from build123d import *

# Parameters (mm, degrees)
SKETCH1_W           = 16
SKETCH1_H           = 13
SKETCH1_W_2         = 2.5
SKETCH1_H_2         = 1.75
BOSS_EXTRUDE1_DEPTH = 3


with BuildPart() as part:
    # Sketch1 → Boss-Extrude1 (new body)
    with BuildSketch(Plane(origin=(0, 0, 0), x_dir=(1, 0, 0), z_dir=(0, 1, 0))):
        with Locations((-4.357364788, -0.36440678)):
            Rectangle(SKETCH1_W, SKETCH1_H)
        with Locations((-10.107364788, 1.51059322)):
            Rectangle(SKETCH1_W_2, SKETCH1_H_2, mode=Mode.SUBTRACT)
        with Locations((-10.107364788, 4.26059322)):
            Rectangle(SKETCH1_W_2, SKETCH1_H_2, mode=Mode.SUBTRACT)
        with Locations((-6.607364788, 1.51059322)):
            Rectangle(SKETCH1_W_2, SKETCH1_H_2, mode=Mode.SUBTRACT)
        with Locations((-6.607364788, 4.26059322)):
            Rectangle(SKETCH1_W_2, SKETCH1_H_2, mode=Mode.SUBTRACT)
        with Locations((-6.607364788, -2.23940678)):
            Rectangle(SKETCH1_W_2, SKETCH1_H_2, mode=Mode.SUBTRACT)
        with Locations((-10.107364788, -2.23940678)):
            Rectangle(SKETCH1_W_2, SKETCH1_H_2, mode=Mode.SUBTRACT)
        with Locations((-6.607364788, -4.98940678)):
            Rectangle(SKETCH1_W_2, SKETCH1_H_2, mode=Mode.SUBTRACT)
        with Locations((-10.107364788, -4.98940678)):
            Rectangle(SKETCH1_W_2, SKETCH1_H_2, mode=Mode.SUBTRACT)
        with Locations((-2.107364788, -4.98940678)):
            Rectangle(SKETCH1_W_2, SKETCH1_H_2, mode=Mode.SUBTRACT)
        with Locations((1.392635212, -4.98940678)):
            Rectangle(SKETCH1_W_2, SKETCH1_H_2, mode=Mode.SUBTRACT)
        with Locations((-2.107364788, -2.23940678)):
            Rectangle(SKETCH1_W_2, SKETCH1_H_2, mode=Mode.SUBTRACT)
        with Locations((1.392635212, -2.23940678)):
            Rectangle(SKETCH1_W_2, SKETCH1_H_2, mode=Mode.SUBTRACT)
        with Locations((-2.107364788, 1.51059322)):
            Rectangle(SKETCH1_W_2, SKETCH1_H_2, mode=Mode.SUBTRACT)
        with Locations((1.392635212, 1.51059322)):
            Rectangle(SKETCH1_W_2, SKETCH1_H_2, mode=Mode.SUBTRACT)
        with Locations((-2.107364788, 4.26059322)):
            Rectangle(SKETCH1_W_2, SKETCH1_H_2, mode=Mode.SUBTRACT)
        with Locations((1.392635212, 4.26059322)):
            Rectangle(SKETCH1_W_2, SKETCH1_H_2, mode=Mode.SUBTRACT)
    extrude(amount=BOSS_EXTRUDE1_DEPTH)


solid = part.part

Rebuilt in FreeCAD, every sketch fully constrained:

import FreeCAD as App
import Part
import Sketcher

V = App.Vector
Q = App.Units.Quantity

doc = App.newDocument("Part")
body = doc.addObject("PartDesign::Body", "Body")

# Sketch on XZ plane
sketch1 = body.newObject("Sketcher::SketchObject", "Sketch")
sketch1.AttachmentSupport = (doc.getObject("XZ_Plane"), [""])
sketch1.MapMode = "FlatFace"
sketch1.addGeometry([
    Part.LineSegment(V(-12.357365, -6.135593, 0), V(-12.357365, 6.864407, 0)),  # 0
    Part.LineSegment(V(-12.357365, 6.864407, 0), V(3.642635, 6.864407, 0)),  # 1
    Part.LineSegment(V(3.642635, 6.864407, 0), V(3.642635, -6.135593, 0)),  # 2
    Part.LineSegment(V(3.642635, -6.135593, 0), V(-12.357365, -6.135593, 0)),  # 3
    Part.LineSegment(V(-8.857365, 5.864407, 0), V(-11.357365, 5.864407, 0)),  # 4
    Part.LineSegment(V(-11.357365, 5.864407, 0), V(-11.357365, 4.114407, 0)),  # 5
    Part.LineSegment(V(-11.357365, 4.114407, 0), V(-8.857365, 4.114407, 0)),  # 6
    Part.LineSegment(V(-8.857365, 4.114407, 0), V(-8.857365, 5.864407, 0)),  # 7
    Part.LineSegment(V(-5.357365, 5.864407, 0), V(-7.857365, 5.864407, 0)),  # 8
    Part.LineSegment(V(-7.857365, 5.864407, 0), V(-7.857365, 4.114407, 0)),  # 9
    Part.LineSegment(V(-7.857365, 4.114407, 0), V(-5.357365, 4.114407, 0)),  # 10
    Part.LineSegment(V(-5.357365, 4.114407, 0), V(-5.357365, 5.864407, 0)),  # 11
    Part.LineSegment(V(-8.857365, 3.114407, 0), V(-11.357365, 3.114407, 0)),  # 12
    Part.LineSegment(V(-11.357365, 3.114407, 0), V(-11.357365, 1.364407, 0)),  # 13
    Part.LineSegment(V(-11.357365, 1.364407, 0), V(-8.857365, 1.364407, 0)),  # 14
    Part.LineSegment(V(-8.857365, 1.364407, 0), V(-8.857365, 3.114407, 0)),  # 15
    Part.LineSegment(V(-5.357365, 3.114407, 0), V(-7.857365, 3.114407, 0)),  # 16
    Part.LineSegment(V(-7.857365, 3.114407, 0), V(-7.857365, 1.364407, 0)),  # 17
    Part.LineSegment(V(-7.857365, 1.364407, 0), V(-5.357365, 1.364407, 0)),  # 18
    Part.LineSegment(V(-5.357365, 1.364407, 0), V(-5.357365, 3.114407, 0)),  # 19
    Part.LineSegment(V(-0.857365, 5.864407, 0), V(-3.357365, 5.864407, 0)),  # 20
    Part.LineSegment(V(-3.357365, 5.864407, 0), V(-3.357365, 4.114407, 0)),  # 21
    Part.LineSegment(V(-3.357365, 4.114407, 0), V(-0.857365, 4.114407, 0)),  # 22
    Part.LineSegment(V(-0.857365, 4.114407, 0), V(-0.857365, 5.864407, 0)),  # 23
    Part.LineSegment(V(2.642635, 5.864407, 0), V(0.142635, 5.864407, 0)),  # 24
    Part.LineSegment(V(0.142635, 5.864407, 0), V(0.142635, 4.114407, 0)),  # 25
    Part.LineSegment(V(0.142635, 4.114407, 0), V(2.642635, 4.114407, 0)),  # 26
    Part.LineSegment(V(2.642635, 4.114407, 0), V(2.642635, 5.864407, 0)),  # 27
    Part.LineSegment(V(-0.857365, 3.114407, 0), V(-3.357365, 3.114407, 0)),  # 28
    Part.LineSegment(V(-3.357365, 3.114407, 0), V(-3.357365, 1.364407, 0)),  # 29
    Part.LineSegment(V(-3.357365, 1.364407, 0), V(-0.857365, 1.364407, 0)),  # 30
    Part.LineSegment(V(-0.857365, 1.364407, 0), V(-0.857365, 3.114407, 0)),  # 31
    Part.LineSegment(V(2.642635, 3.114407, 0), V(0.142635, 3.114407, 0)),  # 32
    Part.LineSegment(V(0.142635, 3.114407, 0), V(0.142635, 1.364407, 0)),  # 33
    Part.LineSegment(V(0.142635, 1.364407, 0), V(2.642635, 1.364407, 0)),  # 34
    Part.LineSegment(V(2.642635, 1.364407, 0), V(2.642635, 3.114407, 0)),  # 35
    Part.LineSegment(V(-8.857365, -0.635593, 0), V(-11.357365, -0.635593, 0)),  # 36
    Part.LineSegment(V(-11.357365, -0.635593, 0), V(-11.357365, -2.385593, 0)),  # 37
    Part.LineSegment(V(-11.357365, -2.385593, 0), V(-8.857365, -2.385593, 0)),  # 38
    Part.LineSegment(V(-8.857365, -2.385593, 0), V(-8.857365, -0.635593, 0)),  # 39
    Part.LineSegment(V(-5.357365, -0.635593, 0), V(-7.857365, -0.635593, 0)),  # 40
    Part.LineSegment(V(-7.857365, -0.635593, 0), V(-7.857365, -2.385593, 0)),  # 41
    Part.LineSegment(V(-7.857365, -2.385593, 0), V(-5.357365, -2.385593, 0)),  # 42
    Part.LineSegment(V(-5.357365, -2.385593, 0), V(-5.357365, -0.635593, 0)),  # 43
    Part.LineSegment(V(-8.857365, -3.385593, 0), V(-11.357365, -3.385593, 0)),  # 44
    Part.LineSegment(V(-11.357365, -3.385593, 0), V(-11.357365, -5.135593, 0)),  # 45
    Part.LineSegment(V(-11.357365, -5.135593, 0), V(-8.857365, -5.135593, 0)),  # 46
    Part.LineSegment(V(-8.857365, -5.135593, 0), V(-8.857365, -3.385593, 0)),  # 47
    Part.LineSegment(V(-5.357365, -3.385593, 0), V(-7.857365, -3.385593, 0)),  # 48
    Part.LineSegment(V(-7.857365, -3.385593, 0), V(-7.857365, -5.135593, 0)),  # 49
    Part.LineSegment(V(-7.857365, -5.135593, 0), V(-5.357365, -5.135593, 0)),  # 50
    Part.LineSegment(V(-5.357365, -5.135593, 0), V(-5.357365, -3.385593, 0)),  # 51
    Part.LineSegment(V(-0.857365, -0.635593, 0), V(-3.357365, -0.635593, 0)),  # 52
    Part.LineSegment(V(-3.357365, -0.635593, 0), V(-3.357365, -2.385593, 0)),  # 53
    Part.LineSegment(V(-3.357365, -2.385593, 0), V(-0.857365, -2.385593, 0)),  # 54
    Part.LineSegment(V(-0.857365, -2.385593, 0), V(-0.857365, -0.635593, 0)),  # 55
    Part.LineSegment(V(2.642635, -0.635593, 0), V(0.142635, -0.635593, 0)),  # 56
    Part.LineSegment(V(0.142635, -0.635593, 0), V(0.142635, -2.385593, 0)),  # 57
    Part.LineSegment(V(0.142635, -2.385593, 0), V(2.642635, -2.385593, 0)),  # 58
    Part.LineSegment(V(2.642635, -2.385593, 0), V(2.642635, -0.635593, 0)),  # 59
    Part.LineSegment(V(-0.857365, -3.385593, 0), V(-3.357365, -3.385593, 0)),  # 60
    Part.LineSegment(V(-3.357365, -3.385593, 0), V(-3.357365, -5.135593, 0)),  # 61
    Part.LineSegment(V(-3.357365, -5.135593, 0), V(-0.857365, -5.135593, 0)),  # 62
    Part.LineSegment(V(-0.857365, -5.135593, 0), V(-0.857365, -3.385593, 0)),  # 63
    Part.LineSegment(V(2.642635, -3.385593, 0), V(0.142635, -3.385593, 0)),  # 64
    Part.LineSegment(V(0.142635, -3.385593, 0), V(0.142635, -5.135593, 0)),  # 65
    Part.LineSegment(V(0.142635, -5.135593, 0), V(2.642635, -5.135593, 0)),  # 66
    Part.LineSegment(V(2.642635, -5.135593, 0), V(2.642635, -3.385593, 0)),  # 67
], False)
sketch1.addConstraint([
    Sketcher.Constraint("Coincident", 0, 2, 1, 1),
    Sketcher.Constraint("Coincident", 1, 2, 2, 1),
    Sketcher.Constraint("Coincident", 2, 2, 3, 1),
    Sketcher.Constraint("Coincident", 3, 2, 0, 1),
    Sketcher.Constraint("Coincident", 4, 2, 5, 1),
    Sketcher.Constraint("Coincident", 5, 2, 6, 1),
    Sketcher.Constraint("Coincident", 6, 2, 7, 1),
    Sketcher.Constraint("Coincident", 7, 2, 4, 1),
    Sketcher.Constraint("Coincident", 8, 2, 9, 1),
    Sketcher.Constraint("Coincident", 9, 2, 10, 1),
    Sketcher.Constraint("Coincident", 10, 2, 11, 1),
    Sketcher.Constraint("Coincident", 11, 2, 8, 1),
    Sketcher.Constraint("Coincident", 12, 2, 13, 1),
    Sketcher.Constraint("Coincident", 13, 2, 14, 1),
    Sketcher.Constraint("Coincident", 14, 2, 15, 1),
    Sketcher.Constraint("Coincident", 15, 2, 12, 1),
    Sketcher.Constraint("Coincident", 16, 2, 17, 1),
    Sketcher.Constraint("Coincident", 17, 2, 18, 1),
    Sketcher.Constraint("Coincident", 18, 2, 19, 1),
    Sketcher.Constraint("Coincident", 19, 2, 16, 1),
    Sketcher.Constraint("Coincident", 20, 2, 21, 1),
    Sketcher.Constraint("Coincident", 21, 2, 22, 1),
    Sketcher.Constraint("Coincident", 22, 2, 23, 1),
    Sketcher.Constraint("Coincident", 23, 2, 20, 1),
    Sketcher.Constraint("Coincident", 24, 2, 25, 1),
    Sketcher.Constraint("Coincident", 25, 2, 26, 1),
    Sketcher.Constraint("Coincident", 26, 2, 27, 1),
    Sketcher.Constraint("Coincident", 27, 2, 24, 1),
    Sketcher.Constraint("Coincident", 28, 2, 29, 1),
    Sketcher.Constraint("Coincident", 29, 2, 30, 1),
    Sketcher.Constraint("Coincident", 30, 2, 31, 1),
    Sketcher.Constraint("Coincident", 31, 2, 28, 1),
    Sketcher.Constraint("Coincident", 32, 2, 33, 1),
    Sketcher.Constraint("Coincident", 33, 2, 34, 1),
    Sketcher.Constraint("Coincident", 34, 2, 35, 1),
    Sketcher.Constraint("Coincident", 35, 2, 32, 1),
    Sketcher.Constraint("Coincident", 36, 2, 37, 1),
    Sketcher.Constraint("Coincident", 37, 2, 38, 1),
    Sketcher.Constraint("Coincident", 38, 2, 39, 1),
    Sketcher.Constraint("Coincident", 39, 2, 36, 1),
    Sketcher.Constraint("Coincident", 40, 2, 41, 1),
    Sketcher.Constraint("Coincident", 41, 2, 42, 1),
    Sketcher.Constraint("Coincident", 42, 2, 43, 1),
    Sketcher.Constraint("Coincident", 43, 2, 40, 1),
    Sketcher.Constraint("Coincident", 44, 2, 45, 1),
    Sketcher.Constraint("Coincident", 45, 2, 46, 1),
    Sketcher.Constraint("Coincident", 46, 2, 47, 1),
    Sketcher.Constraint("Coincident", 47, 2, 44, 1),
    Sketcher.Constraint("Coincident", 48, 2, 49, 1),
    Sketcher.Constraint("Coincident", 49, 2, 50, 1),
    Sketcher.Constraint("Coincident", 50, 2, 51, 1),
    Sketcher.Constraint("Coincident", 51, 2, 48, 1),
    Sketcher.Constraint("Coincident", 52, 2, 53, 1),
    Sketcher.Constraint("Coincident", 53, 2, 54, 1),
    Sketcher.Constraint("Coincident", 54, 2, 55, 1),
    Sketcher.Constraint("Coincident", 55, 2, 52, 1),
    Sketcher.Constraint("Coincident", 56, 2, 57, 1),
    Sketcher.Constraint("Coincident", 57, 2, 58, 1),
    Sketcher.Constraint("Coincident", 58, 2, 59, 1),
    Sketcher.Constraint("Coincident", 59, 2, 56, 1),
    Sketcher.Constraint("Coincident", 60, 2, 61, 1),
    Sketcher.Constraint("Coincident", 61, 2, 62, 1),
    Sketcher.Constraint("Coincident", 62, 2, 63, 1),
    Sketcher.Constraint("Coincident", 63, 2, 60, 1),
    Sketcher.Constraint("Coincident", 64, 2, 65, 1),
    Sketcher.Constraint("Coincident", 65, 2, 66, 1),
    Sketcher.Constraint("Coincident", 66, 2, 67, 1),
    Sketcher.Constraint("Coincident", 67, 2, 64, 1),
    Sketcher.Constraint("Vertical", 0),
    Sketcher.Constraint("Horizontal", 1),
    Sketcher.Constraint("Vertical", 2),
    Sketcher.Constraint("Horizontal", 3),
    Sketcher.Constraint("Horizontal", 4),
    Sketcher.Constraint("Vertical", 5),
    Sketcher.Constraint("Horizontal", 6),
    Sketcher.Constraint("Vertical", 7),
    Sketcher.Constraint("Horizontal", 8),
    Sketcher.Constraint("Vertical", 9),
    Sketcher.Constraint("Horizontal", 10),
    Sketcher.Constraint("Vertical", 11),
    Sketcher.Constraint("Horizontal", 12),
    Sketcher.Constraint("Vertical", 13),
    Sketcher.Constraint("Horizontal", 14),
    Sketcher.Constraint("Vertical", 15),
    Sketcher.Constraint("Horizontal", 16),
    Sketcher.Constraint("Vertical", 17),
    Sketcher.Constraint("Horizontal", 18),
    Sketcher.Constraint("Vertical", 19),
    Sketcher.Constraint("Horizontal", 20),
    Sketcher.Constraint("Vertical", 21),
    Sketcher.Constraint("Horizontal", 22),
    Sketcher.Constraint("Vertical", 23),
    Sketcher.Constraint("Horizontal", 24),
    Sketcher.Constraint("Vertical", 25),
    Sketcher.Constraint("Horizontal", 26),
    Sketcher.Constraint("Vertical", 27),
    Sketcher.Constraint("Horizontal", 28),
    Sketcher.Constraint("Vertical", 29),
    Sketcher.Constraint("Horizontal", 30),
    Sketcher.Constraint("Vertical", 31),
    Sketcher.Constraint("Horizontal", 32),
    Sketcher.Constraint("Vertical", 33),
    Sketcher.Constraint("Horizontal", 34),
    Sketcher.Constraint("Vertical", 35),
    Sketcher.Constraint("Horizontal", 36),
    Sketcher.Constraint("Vertical", 37),
    Sketcher.Constraint("Horizontal", 38),
    Sketcher.Constraint("Vertical", 39),
    Sketcher.Constraint("Horizontal", 40),
    Sketcher.Constraint("Vertical", 41),
    Sketcher.Constraint("Horizontal", 42),
    Sketcher.Constraint("Vertical", 43),
    Sketcher.Constraint("Horizontal", 44),
    Sketcher.Constraint("Vertical", 45),
    Sketcher.Constraint("Horizontal", 46),
    Sketcher.Constraint("Vertical", 47),
    Sketcher.Constraint("Horizontal", 48),
    Sketcher.Constraint("Vertical", 49),
    Sketcher.Constraint("Horizontal", 50),
    Sketcher.Constraint("Vertical", 51),
    Sketcher.Constraint("Horizontal", 52),
    Sketcher.Constraint("Vertical", 53),
    Sketcher.Constraint("Horizontal", 54),
    Sketcher.Constraint("Vertical", 55),
    Sketcher.Constraint("Horizontal", 56),
    Sketcher.Constraint("Vertical", 57),
    Sketcher.Constraint("Horizontal", 58),
    Sketcher.Constraint("Vertical", 59),
    Sketcher.Constraint("Horizontal", 60),
    Sketcher.Constraint("Vertical", 61),
    Sketcher.Constraint("Horizontal", 62),
    Sketcher.Constraint("Vertical", 63),
    Sketcher.Constraint("Horizontal", 64),
    Sketcher.Constraint("Vertical", 65),
    Sketcher.Constraint("Horizontal", 66),
    Sketcher.Constraint("Vertical", 67),
    Sketcher.Constraint("Horizontal", 7, 2, 8, 2),
    Sketcher.Constraint("Horizontal", 6, 2, 9, 2),
    Sketcher.Constraint("Horizontal", 15, 2, 16, 2),
    Sketcher.Constraint("Horizontal", 14, 2, 17, 2),
    Sketcher.Constraint("Horizontal", 11, 2, 20, 2),
    Sketcher.Constraint("Horizontal", 10, 2, 21, 2),
    Sketcher.Constraint("Horizontal", 23, 2, 24, 2),
    Sketcher.Constraint("Horizontal", 22, 2, 25, 2),
    Sketcher.Constraint("Horizontal", 19, 2, 28, 2),
    Sketcher.Constraint("Horizontal", 18, 2, 29, 2),
    Sketcher.Constraint("Horizontal", 31, 2, 32, 2),
    Sketcher.Constraint("Horizontal", 30, 2, 33, 2),
    Sketcher.Constraint("Horizontal", 39, 2, 40, 2),
    Sketcher.Constraint("Horizontal", 38, 2, 41, 2),
    Sketcher.Constraint("Horizontal", 47, 2, 48, 2),
    Sketcher.Constraint("Horizontal", 46, 2, 49, 2),
    Sketcher.Constraint("Horizontal", 43, 2, 52, 2),
    Sketcher.Constraint("Horizontal", 42, 2, 53, 2),
    Sketcher.Constraint("Horizontal", 55, 2, 56, 2),
    Sketcher.Constraint("Horizontal", 54, 2, 57, 2),
    Sketcher.Constraint("Horizontal", 51, 2, 60, 2),
    Sketcher.Constraint("Horizontal", 50, 2, 61, 2),
    Sketcher.Constraint("Horizontal", 63, 2, 64, 2),
    Sketcher.Constraint("Horizontal", 62, 2, 65, 2),
    Sketcher.Constraint("Vertical", 5, 2, 12, 2),
    Sketcher.Constraint("Vertical", 7, 2, 14, 2),
    Sketcher.Constraint("Vertical", 9, 2, 16, 2),
    Sketcher.Constraint("Vertical", 11, 2, 18, 2),
    Sketcher.Constraint("Vertical", 21, 2, 28, 2),
    Sketcher.Constraint("Vertical", 23, 2, 30, 2),
    Sketcher.Constraint("Vertical", 25, 2, 32, 2),
    Sketcher.Constraint("Vertical", 27, 2, 34, 2),
    Sketcher.Constraint("Vertical", 13, 2, 36, 2),
    Sketcher.Constraint("Vertical", 15, 2, 38, 2),
    Sketcher.Constraint("Vertical", 17, 2, 40, 2),
    Sketcher.Constraint("Vertical", 19, 2, 42, 2),
    Sketcher.Constraint("Vertical", 37, 2, 44, 2),
    Sketcher.Constraint("Vertical", 39, 2, 46, 2),
    Sketcher.Constraint("Vertical", 41, 2, 48, 2),
    Sketcher.Constraint("Vertical", 43, 2, 50, 2),
    Sketcher.Constraint("Vertical", 29, 2, 52, 2),
    Sketcher.Constraint("Vertical", 31, 2, 54, 2),
    Sketcher.Constraint("Vertical", 33, 2, 56, 2),
    Sketcher.Constraint("Vertical", 35, 2, 58, 2),
    Sketcher.Constraint("Vertical", 53, 2, 60, 2),
    Sketcher.Constraint("Vertical", 55, 2, 62, 2),
    Sketcher.Constraint("Vertical", 57, 2, 64, 2),
    Sketcher.Constraint("Vertical", 59, 2, 66, 2),
    Sketcher.Constraint("Equal", 6, 8),
    Sketcher.Constraint("Equal", 18, 20),
    Sketcher.Constraint("Equal", 22, 24),
    Sketcher.Constraint("Equal", 11, 13),
    Sketcher.Constraint("Equal", 35, 37),
    Sketcher.Constraint("Equal", 43, 45),
    Sketcher.Constraint("DistanceX", 1, 1, 1, 2, Q("16 mm")),
    Sketcher.Constraint("DistanceY", 0, 1, 0, 2, Q("13 mm")),
    Sketcher.Constraint("DistanceX", 4, 2, 4, 1, Q("2.5 mm")),
    Sketcher.Constraint("DistanceY", 5, 2, 5, 1, Q("1.75 mm")),
    Sketcher.Constraint("DistanceX", 0, 2, -1, 1, Q("12.357365 mm")),
    Sketcher.Constraint("DistanceY", -1, 1, 0, 2, Q("6.864407 mm")),
    Sketcher.Constraint("DistanceX", 4, 2, -1, 1, Q("11.357365 mm")),
    Sketcher.Constraint("DistanceY", -1, 1, 4, 2, Q("5.864407 mm")),
    Sketcher.Constraint("DistanceX", 8, 2, -1, 1, Q("7.857365 mm")),
    Sketcher.Constraint("DistanceY", -1, 1, 12, 2, Q("3.114407 mm")),
    Sketcher.Constraint("DistanceX", 20, 2, -1, 1, Q("3.357365 mm")),
    Sketcher.Constraint("DistanceX", -1, 1, 24, 2, Q("0.142635 mm")),
    Sketcher.Constraint("DistanceY", 36, 2, -1, 1, Q("0.635593 mm")),
    Sketcher.Constraint("DistanceY", 44, 2, -1, 1, Q("3.385593 mm")),
])
pad1 = body.newObject("PartDesign::Pad", "Pad")
pad1.Profile = sketch1
pad1.Length = 3
pad1.Reversed = True

doc.recompute()
